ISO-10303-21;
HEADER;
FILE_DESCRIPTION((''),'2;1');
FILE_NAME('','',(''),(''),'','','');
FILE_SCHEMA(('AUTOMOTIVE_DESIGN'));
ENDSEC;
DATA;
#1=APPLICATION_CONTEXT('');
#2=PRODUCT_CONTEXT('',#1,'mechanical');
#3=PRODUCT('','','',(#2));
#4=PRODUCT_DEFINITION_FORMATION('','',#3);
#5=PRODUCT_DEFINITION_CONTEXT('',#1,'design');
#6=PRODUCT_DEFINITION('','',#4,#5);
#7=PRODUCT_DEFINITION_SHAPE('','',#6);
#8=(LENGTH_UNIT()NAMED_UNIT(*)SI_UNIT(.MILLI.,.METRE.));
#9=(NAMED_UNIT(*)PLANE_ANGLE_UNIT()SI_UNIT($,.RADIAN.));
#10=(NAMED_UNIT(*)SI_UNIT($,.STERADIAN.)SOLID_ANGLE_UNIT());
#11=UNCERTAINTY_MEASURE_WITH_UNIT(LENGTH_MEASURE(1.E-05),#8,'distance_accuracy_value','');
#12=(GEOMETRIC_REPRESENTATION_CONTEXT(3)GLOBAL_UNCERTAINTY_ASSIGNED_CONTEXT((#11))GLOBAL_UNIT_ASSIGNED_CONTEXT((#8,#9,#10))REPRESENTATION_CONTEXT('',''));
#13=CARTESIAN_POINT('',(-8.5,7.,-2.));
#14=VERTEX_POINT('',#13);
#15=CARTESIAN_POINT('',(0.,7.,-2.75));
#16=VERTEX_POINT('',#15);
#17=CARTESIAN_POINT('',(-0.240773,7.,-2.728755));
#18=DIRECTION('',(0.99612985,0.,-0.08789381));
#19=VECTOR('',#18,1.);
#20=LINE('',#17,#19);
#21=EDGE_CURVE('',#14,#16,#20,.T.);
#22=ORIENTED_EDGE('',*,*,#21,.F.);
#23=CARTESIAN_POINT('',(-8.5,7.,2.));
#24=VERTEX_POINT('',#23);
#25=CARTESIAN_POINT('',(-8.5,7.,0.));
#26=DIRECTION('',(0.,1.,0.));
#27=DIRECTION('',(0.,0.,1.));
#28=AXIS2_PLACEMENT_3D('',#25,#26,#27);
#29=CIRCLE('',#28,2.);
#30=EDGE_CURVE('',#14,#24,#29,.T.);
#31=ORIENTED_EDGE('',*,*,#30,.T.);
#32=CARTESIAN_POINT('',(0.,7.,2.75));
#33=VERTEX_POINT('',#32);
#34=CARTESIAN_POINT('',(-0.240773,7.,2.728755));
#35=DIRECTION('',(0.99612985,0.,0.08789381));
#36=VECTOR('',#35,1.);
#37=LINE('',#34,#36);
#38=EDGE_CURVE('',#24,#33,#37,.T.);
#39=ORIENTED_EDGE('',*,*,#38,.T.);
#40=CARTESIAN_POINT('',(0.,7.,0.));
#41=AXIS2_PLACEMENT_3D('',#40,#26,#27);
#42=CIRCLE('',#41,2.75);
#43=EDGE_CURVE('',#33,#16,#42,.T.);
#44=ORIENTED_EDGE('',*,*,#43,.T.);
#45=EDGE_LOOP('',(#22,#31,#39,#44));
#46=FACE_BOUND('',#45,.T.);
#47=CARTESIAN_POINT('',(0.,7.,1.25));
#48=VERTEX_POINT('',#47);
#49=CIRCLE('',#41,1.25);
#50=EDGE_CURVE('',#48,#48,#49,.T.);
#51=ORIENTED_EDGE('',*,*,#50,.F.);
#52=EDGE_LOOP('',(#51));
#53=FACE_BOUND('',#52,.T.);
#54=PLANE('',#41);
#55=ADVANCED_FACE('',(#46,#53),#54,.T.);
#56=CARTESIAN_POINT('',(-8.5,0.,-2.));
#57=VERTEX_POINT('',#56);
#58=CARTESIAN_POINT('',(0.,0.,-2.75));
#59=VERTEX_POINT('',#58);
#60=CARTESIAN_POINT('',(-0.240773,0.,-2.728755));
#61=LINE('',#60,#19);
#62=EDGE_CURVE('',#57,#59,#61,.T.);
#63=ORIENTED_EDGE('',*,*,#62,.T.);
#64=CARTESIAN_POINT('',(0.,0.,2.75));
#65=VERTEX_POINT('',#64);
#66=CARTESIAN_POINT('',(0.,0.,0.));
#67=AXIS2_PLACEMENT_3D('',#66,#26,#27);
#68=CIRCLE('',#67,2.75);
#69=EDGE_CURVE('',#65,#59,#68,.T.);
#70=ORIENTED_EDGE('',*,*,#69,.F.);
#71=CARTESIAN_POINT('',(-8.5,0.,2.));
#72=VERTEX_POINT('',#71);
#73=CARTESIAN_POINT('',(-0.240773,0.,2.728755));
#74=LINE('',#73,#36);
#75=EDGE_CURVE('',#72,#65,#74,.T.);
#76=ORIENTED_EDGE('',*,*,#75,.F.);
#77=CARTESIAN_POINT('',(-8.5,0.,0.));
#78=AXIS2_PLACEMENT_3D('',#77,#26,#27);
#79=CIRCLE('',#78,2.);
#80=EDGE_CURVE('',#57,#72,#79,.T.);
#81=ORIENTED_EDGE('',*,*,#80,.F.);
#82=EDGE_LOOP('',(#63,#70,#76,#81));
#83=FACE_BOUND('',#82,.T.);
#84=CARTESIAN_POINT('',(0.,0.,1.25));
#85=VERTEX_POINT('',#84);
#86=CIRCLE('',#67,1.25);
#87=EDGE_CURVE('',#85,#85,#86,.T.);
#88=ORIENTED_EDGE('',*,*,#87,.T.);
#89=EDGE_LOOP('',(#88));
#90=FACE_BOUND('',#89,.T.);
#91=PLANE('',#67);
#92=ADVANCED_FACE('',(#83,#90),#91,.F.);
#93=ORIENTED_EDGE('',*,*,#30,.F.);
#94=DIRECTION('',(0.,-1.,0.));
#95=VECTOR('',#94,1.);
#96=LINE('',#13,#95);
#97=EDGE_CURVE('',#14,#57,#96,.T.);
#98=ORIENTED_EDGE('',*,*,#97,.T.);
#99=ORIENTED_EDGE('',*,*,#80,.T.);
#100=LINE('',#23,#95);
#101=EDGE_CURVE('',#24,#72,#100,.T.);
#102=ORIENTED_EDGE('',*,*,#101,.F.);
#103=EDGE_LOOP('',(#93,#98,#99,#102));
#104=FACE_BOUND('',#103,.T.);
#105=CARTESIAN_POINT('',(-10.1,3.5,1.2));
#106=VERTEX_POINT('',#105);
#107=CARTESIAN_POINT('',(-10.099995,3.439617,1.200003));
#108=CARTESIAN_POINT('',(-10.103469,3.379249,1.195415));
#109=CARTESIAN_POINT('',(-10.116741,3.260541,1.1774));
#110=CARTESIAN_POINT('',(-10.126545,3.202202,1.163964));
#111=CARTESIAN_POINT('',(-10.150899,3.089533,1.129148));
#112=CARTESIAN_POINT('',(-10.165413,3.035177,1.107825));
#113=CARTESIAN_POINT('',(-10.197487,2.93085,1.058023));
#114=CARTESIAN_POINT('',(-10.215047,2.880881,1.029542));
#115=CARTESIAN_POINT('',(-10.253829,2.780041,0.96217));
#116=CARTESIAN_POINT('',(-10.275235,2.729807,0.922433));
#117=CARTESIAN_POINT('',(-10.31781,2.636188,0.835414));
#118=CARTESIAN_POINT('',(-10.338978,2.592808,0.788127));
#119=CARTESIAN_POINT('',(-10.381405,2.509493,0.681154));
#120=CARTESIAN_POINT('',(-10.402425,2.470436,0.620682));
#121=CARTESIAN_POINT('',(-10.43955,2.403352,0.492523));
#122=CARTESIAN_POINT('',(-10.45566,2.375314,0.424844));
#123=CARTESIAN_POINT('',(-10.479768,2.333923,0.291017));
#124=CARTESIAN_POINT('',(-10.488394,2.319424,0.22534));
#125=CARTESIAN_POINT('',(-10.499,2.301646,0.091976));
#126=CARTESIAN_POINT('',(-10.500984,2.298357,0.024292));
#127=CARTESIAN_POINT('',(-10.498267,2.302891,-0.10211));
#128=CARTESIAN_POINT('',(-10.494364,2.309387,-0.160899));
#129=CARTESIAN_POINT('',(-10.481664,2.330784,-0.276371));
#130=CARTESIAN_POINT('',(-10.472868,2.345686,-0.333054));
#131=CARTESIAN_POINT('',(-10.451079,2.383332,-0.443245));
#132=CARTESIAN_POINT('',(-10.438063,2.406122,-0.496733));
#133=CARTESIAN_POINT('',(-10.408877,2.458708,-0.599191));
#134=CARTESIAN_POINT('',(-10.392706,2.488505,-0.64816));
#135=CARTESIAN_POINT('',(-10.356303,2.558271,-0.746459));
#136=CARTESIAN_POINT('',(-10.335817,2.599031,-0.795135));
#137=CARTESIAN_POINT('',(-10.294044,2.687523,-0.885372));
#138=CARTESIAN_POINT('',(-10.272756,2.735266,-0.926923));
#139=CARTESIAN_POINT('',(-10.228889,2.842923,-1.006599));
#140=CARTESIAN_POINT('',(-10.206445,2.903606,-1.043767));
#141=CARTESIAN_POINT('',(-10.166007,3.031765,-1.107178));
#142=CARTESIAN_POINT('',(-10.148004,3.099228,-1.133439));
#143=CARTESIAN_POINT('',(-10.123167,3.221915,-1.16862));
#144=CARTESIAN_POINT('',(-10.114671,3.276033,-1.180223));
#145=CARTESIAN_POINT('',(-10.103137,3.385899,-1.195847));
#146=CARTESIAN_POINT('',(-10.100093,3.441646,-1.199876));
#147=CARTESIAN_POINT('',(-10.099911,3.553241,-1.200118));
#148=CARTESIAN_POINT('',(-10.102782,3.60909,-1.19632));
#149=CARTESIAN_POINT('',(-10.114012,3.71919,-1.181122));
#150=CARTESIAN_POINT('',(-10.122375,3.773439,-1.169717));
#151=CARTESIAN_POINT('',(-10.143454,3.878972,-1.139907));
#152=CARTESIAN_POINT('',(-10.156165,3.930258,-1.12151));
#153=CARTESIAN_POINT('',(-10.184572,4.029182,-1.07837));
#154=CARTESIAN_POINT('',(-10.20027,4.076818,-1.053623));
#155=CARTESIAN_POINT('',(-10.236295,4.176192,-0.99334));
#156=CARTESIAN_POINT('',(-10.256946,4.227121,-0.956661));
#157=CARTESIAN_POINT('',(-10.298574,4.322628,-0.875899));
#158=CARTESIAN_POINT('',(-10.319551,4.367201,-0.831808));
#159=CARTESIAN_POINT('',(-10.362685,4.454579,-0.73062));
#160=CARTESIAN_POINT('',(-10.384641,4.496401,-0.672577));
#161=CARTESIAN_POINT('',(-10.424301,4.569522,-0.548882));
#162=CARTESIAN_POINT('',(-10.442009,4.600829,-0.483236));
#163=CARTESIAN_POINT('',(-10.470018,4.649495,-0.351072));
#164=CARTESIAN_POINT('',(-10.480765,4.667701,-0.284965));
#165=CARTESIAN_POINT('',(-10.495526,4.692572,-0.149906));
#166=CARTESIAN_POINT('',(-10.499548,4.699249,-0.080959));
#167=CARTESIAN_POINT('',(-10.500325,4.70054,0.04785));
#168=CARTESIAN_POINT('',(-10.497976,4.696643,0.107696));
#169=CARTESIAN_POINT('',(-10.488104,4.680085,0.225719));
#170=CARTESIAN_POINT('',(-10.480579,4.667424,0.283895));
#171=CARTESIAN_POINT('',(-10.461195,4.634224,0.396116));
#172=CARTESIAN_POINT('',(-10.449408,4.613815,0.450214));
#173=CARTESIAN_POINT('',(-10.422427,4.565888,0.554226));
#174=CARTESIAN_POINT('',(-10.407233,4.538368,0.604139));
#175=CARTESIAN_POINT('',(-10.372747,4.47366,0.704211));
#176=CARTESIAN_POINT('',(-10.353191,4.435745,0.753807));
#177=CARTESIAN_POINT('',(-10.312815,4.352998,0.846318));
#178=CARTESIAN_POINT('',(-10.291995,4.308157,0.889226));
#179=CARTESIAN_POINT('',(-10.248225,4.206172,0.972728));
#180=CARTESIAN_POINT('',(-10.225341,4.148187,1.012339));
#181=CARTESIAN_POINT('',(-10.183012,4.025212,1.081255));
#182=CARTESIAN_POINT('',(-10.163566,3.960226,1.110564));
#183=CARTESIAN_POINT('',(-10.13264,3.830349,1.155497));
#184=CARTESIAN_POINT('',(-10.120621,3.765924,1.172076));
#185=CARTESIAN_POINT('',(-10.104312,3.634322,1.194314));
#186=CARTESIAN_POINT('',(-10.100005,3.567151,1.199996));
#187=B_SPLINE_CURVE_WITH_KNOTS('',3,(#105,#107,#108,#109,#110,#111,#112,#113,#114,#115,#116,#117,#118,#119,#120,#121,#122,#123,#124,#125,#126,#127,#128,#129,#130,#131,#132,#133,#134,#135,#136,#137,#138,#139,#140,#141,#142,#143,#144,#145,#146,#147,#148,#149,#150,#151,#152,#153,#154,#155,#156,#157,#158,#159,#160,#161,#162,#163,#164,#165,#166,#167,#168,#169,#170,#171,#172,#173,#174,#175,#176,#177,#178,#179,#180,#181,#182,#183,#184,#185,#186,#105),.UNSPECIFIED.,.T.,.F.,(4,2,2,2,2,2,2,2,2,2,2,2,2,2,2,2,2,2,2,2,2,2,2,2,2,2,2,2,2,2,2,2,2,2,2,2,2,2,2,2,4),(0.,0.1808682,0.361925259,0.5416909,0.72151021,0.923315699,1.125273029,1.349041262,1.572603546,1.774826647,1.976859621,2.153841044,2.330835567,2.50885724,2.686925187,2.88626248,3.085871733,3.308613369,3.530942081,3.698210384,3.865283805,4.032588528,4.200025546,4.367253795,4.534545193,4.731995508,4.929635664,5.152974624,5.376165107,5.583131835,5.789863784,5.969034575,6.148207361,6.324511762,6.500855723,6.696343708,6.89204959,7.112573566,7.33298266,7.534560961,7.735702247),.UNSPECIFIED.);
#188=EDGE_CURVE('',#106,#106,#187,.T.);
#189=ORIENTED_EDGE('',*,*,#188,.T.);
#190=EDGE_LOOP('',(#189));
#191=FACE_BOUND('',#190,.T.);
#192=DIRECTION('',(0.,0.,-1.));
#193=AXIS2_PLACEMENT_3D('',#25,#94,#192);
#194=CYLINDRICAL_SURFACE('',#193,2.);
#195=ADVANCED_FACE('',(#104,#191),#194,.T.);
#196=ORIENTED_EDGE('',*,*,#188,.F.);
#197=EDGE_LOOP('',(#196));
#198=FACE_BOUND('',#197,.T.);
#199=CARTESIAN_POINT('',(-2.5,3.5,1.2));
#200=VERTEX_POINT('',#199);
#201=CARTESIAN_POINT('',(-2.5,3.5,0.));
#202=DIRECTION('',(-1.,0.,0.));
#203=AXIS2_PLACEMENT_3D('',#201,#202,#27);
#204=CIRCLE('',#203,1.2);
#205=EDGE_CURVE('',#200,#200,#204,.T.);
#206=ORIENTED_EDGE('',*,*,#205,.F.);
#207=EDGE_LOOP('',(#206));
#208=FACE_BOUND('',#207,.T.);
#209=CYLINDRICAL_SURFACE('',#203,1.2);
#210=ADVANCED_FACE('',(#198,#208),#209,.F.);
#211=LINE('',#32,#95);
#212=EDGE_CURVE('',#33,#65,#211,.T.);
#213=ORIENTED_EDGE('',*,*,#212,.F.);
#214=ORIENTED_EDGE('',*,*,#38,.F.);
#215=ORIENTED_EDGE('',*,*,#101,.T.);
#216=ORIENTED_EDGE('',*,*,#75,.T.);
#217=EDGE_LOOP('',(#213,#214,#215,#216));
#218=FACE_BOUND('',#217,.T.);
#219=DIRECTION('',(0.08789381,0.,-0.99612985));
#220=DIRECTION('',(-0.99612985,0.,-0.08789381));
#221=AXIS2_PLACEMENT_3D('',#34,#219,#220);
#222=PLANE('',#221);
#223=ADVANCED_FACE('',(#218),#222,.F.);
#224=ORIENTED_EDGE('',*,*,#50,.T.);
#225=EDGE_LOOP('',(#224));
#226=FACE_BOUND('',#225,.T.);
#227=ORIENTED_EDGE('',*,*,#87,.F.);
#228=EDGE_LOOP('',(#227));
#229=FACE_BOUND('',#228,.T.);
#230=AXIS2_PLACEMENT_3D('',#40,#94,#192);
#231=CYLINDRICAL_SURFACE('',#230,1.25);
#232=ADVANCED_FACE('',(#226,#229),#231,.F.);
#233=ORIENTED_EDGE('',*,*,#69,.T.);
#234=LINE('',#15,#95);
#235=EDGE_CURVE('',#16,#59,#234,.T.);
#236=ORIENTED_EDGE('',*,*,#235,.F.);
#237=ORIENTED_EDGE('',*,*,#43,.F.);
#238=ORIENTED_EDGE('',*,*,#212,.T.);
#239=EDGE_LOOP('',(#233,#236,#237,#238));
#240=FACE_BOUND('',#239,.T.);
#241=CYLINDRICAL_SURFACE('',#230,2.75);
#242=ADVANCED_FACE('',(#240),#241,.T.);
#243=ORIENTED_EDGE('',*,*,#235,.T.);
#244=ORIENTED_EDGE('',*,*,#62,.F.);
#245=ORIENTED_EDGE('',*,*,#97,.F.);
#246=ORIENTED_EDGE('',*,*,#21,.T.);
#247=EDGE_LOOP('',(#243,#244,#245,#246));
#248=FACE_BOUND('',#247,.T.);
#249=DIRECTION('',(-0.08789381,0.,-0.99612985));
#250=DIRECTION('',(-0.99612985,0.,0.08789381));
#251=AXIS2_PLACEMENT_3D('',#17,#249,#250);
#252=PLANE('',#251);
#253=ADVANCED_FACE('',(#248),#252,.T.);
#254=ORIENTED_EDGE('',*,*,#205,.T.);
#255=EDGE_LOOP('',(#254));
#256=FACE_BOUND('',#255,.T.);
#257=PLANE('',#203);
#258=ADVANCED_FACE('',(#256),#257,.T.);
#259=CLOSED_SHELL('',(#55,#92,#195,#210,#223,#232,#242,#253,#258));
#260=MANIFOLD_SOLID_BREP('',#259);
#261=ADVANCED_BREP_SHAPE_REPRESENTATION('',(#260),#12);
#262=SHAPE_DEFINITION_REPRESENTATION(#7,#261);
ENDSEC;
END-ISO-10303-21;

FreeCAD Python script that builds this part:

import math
import FreeCAD as App
import Part
import Sketcher
Q = App.Units.Quantity

doc = App.newDocument("Part")
body = doc.addObject("PartDesign::Body", "Body")

# Sketch on XZ plane
sketch1 = doc.addObject("Sketcher::SketchObject", "Sketch")
body.addObject(sketch1)
sketch1.AttachmentSupport = (doc.XZ_Plane, [""])
sketch1.MapMode = "FlatFace"
sketch1.addGeometry([
    Part.LineSegment(App.Vector(-0.48, -2.71, 0), App.Vector(-8.5, -2, 0)),  # 0
    Part.ArcOfCircle(Part.Circle(App.Vector(-8.5, 0, 0), App.Vector(0, 0, 1), 2), math.radians(90), math.radians(270)),  # 1
    Part.LineSegment(App.Vector(-8.5, 2, 0), App.Vector(-0.48, 2.71, 0)),  # 2
    Part.LineSegment(App.Vector(-0.48, 2.71, 0), App.Vector(0, 2.75, 0)),  # 3
    Part.ArcOfCircle(Part.Circle(App.Vector(0, 0, 0), App.Vector(0, 0, 1), 2.75), math.radians(-90), math.radians(90)),  # 4
    Part.LineSegment(App.Vector(0, -2.75, 0), App.Vector(-0.48, -2.71, 0)),  # 5
    Part.Circle(App.Vector(0, 0, 0), App.Vector(0, 0, 1), 1.25),  # 6
], False)
sketch1.addConstraint([
    Sketcher.Constraint("Coincident", 0, 2, 1, 2),
    Sketcher.Constraint("Coincident", 1, 1, 2, 1),
    Sketcher.Constraint("Coincident", 2, 2, 3, 1),
    Sketcher.Constraint("Coincident", 3, 2, 4, 2),
    Sketcher.Constraint("Coincident", 4, 1, 5, 1),
    Sketcher.Constraint("Coincident", 5, 2, 0, 1),
    Sketcher.Constraint("Coincident", 4, 3, -1, 1),
    Sketcher.Constraint("Coincident", 6, 3, -1, 1),
    Sketcher.Constraint("Symmetric", 0, 2, 1, 1, -1),
    Sketcher.Constraint("Symmetric", 2, 2, 5, 2, -1),
    Sketcher.Constraint("PointOnObject", 3, 2, -2),
    Sketcher.Constraint("PointOnObject", 4, 1, -2),
    Sketcher.Constraint("Parallel", 2, 3),
    Sketcher.Constraint("Vertical", 1, 3, 0, 2),
    Sketcher.Constraint("Radius", 1, Q("2 mm")),
    Sketcher.Constraint("Diameter", 6, Q("2.5 mm")),
    Sketcher.Constraint("Radius", 4, Q("2.75 mm")),
    Sketcher.Constraint("DistanceX", 1, 3, -1, 1, Q("8.5 mm")),
    Sketcher.Constraint("Distance", 0, Q("8.049608 mm")),
])
pad1 = doc.addObject("PartDesign::Pad", "Pad")
body.addObject(pad1)
pad1.Profile = sketch1
pad1.Length = 7
pad1.Reversed = True

# Sketch on YZ plane
sketch2 = doc.addObject("Sketcher::SketchObject", "Sketch001")
body.addObject(sketch2)
sketch2.AttachmentSupport = (doc.YZ_Plane, [""])
sketch2.MapMode = "FlatFace"
sketch2.AttachmentOffset = App.Placement(App.Vector(0, 0, -10.5), App.Rotation())
sketch2.addGeometry(Part.Circle(App.Vector(3.5, 0, 0), App.Vector(0, 0, 1), 1.2), False)
sketch2.addConstraint([
    Sketcher.Constraint("PointOnObject", 0, 3, -1),
    Sketcher.Constraint("Diameter", 0, Q("2.4 mm")),
    Sketcher.Constraint("DistanceX", -1, 1, 0, 3, Q("3.5 mm")),
])
pocket1 = doc.addObject("PartDesign::Pocket", "Pocket")
body.addObject(pocket1)
pocket1.Profile = sketch2
pocket1.Length = 8
pocket1.Reversed = True

doc.recompute()
